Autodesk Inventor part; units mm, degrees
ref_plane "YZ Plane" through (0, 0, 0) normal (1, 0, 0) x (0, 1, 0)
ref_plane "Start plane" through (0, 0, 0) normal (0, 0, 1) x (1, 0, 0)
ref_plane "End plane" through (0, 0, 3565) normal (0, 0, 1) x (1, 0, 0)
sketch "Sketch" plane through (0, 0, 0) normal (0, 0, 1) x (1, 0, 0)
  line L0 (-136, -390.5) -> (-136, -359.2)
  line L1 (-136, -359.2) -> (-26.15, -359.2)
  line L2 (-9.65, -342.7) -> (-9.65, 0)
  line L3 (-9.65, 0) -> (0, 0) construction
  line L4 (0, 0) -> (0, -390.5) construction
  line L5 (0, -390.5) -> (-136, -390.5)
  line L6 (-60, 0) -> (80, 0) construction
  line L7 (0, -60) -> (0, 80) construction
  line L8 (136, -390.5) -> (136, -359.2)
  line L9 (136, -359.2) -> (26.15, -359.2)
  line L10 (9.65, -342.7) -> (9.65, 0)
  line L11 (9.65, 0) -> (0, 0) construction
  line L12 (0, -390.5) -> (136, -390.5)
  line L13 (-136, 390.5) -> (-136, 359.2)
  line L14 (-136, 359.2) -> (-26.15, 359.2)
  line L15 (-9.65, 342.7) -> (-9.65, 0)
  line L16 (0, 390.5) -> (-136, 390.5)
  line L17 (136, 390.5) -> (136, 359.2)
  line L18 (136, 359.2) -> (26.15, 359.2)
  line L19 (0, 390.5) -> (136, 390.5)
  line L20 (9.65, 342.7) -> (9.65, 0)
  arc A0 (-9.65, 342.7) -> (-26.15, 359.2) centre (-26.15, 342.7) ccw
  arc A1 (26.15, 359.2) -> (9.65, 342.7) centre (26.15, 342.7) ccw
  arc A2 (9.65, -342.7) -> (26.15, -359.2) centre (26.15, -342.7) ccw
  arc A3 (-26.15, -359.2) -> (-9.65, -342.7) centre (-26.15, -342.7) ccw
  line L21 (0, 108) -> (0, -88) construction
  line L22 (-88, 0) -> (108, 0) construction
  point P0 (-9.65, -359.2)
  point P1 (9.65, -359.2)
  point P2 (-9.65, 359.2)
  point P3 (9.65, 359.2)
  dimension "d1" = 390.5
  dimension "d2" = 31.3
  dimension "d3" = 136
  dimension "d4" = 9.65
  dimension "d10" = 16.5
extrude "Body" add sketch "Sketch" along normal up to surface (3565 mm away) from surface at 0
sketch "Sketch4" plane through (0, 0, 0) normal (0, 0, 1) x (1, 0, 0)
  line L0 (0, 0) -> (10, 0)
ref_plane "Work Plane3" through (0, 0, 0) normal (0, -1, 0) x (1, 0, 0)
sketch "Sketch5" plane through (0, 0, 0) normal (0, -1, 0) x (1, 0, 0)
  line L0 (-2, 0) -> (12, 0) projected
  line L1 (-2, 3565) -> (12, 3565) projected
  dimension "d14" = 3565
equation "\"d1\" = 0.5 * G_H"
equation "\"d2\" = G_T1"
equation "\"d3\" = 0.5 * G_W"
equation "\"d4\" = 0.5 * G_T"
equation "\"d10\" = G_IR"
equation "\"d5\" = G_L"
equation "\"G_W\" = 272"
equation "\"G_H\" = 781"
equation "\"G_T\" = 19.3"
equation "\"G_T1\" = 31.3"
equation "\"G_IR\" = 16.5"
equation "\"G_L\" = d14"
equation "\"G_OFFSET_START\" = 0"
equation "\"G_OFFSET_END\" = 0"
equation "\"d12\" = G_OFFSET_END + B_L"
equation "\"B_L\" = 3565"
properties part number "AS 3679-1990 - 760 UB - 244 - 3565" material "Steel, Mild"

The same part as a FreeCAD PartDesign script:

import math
import FreeCAD as App
import Part
import Sketcher
Q = App.Units.Quantity

doc = App.newDocument("Part")
params = doc.addObject("Spreadsheet::Sheet", "Params")
for row, (alias, value) in enumerate([
    ("sketch1_radius", "16.5 mm"),
    ("sketch1_height", "31.3 mm"),
    ("pad1_length", "3565 mm"),
], start=1):
    params.set(f"A{row}", alias)
    params.set(f"B{row}", "=" + value)
    params.setAlias(f"B{row}", alias)

body = doc.addObject("PartDesign::Body", "Body")

# Sketch on XY plane
sketch1 = doc.addObject("Sketcher::SketchObject", "Sketch")
body.addObject(sketch1)
sketch1.AttachmentSupport = (doc.XY_Plane, [""])
sketch1.MapMode = "FlatFace"
sketch1.addGeometry(Part.LineSegment(App.Vector(-136, -359, 0), App.Vector(-136, -390, 0)), False)
sketch1.addGeometry(Part.LineSegment(App.Vector(-136, -390, 0), App.Vector(136, -390, 0)), False)
sketch1.addGeometry(Part.LineSegment(App.Vector(136, -390, 0), App.Vector(136, -359, 0)), False)
sketch1.addGeometry(Part.LineSegment(App.Vector(136, -359, 0), App.Vector(26, -359, 0)), False)
sketch1.addGeometry(Part.ArcOfCircle(Part.Circle(App.Vector(26, -343, 0), App.Vector(0, 0, 1), 16), math.radians(180), math.radians(270)), False)
sketch1.addGeometry(Part.LineSegment(App.Vector(10, -343, 0), App.Vector(10, 343, 0)), False)
sketch1.addGeometry(Part.ArcOfCircle(Part.Circle(App.Vector(26, 343, 0), App.Vector(0, 0, 1), 16), math.radians(90), math.radians(180)), False)
sketch1.addGeometry(Part.LineSegment(App.Vector(26, 359, 0), App.Vector(136, 359, 0)), False)
sketch1.addGeometry(Part.LineSegment(App.Vector(136, 359, 0), App.Vector(136, 390, 0)), False)
sketch1.addGeometry(Part.LineSegment(App.Vector(136, 390, 0), App.Vector(-136, 390, 0)), False)
sketch1.addGeometry(Part.LineSegment(App.Vector(-136, 390, 0), App.Vector(-136, 359, 0)), False)
sketch1.addGeometry(Part.LineSegment(App.Vector(-136, 359, 0), App.Vector(-26, 359, 0)), False)
sketch1.addGeometry(Part.ArcOfCircle(Part.Circle(App.Vector(-26, 343, 0), App.Vector(0, 0, 1), 16), math.radians(0), math.radians(90)), False)
sketch1.addGeometry(Part.LineSegment(App.Vector(-10, 343, 0), App.Vector(-10, -343, 0)), False)
sketch1.addGeometry(Part.ArcOfCircle(Part.Circle(App.Vector(-26, -343, 0), App.Vector(0, 0, 1), 16), math.radians(-90), math.radians(0)), False)
sketch1.addGeometry(Part.LineSegment(App.Vector(-26, -359, 0), App.Vector(-136, -359, 0)), False)
sketch1.addConstraint(Sketcher.Constraint("Coincident", 0, 2, 1, 1))
sketch1.addConstraint(Sketcher.Constraint("Coincident", 1, 2, 2, 1))
sketch1.addConstraint(Sketcher.Constraint("Coincident", 2, 2, 3, 1))
sketch1.addConstraint(Sketcher.Constraint("Tangent", 3, 2, 4, 2))
sketch1.addConstraint(Sketcher.Constraint("Tangent", 4, 1, 5, 1))
sketch1.addConstraint(Sketcher.Constraint("Tangent", 5, 2, 6, 2))
sketch1.addConstraint(Sketcher.Constraint("Tangent", 6, 1, 7, 1))
sketch1.addConstraint(Sketcher.Constraint("Coincident", 7, 2, 8, 1))
sketch1.addConstraint(Sketcher.Constraint("Coincident", 8, 2, 9, 1))
sketch1.addConstraint(Sketcher.Constraint("Coincident", 9, 2, 10, 1))
sketch1.addConstraint(Sketcher.Constraint("Coincident", 10, 2, 11, 1))
sketch1.addConstraint(Sketcher.Constraint("Tangent", 11, 2, 12, 2))
sketch1.addConstraint(Sketcher.Constraint("Tangent", 12, 1, 13, 1))
sketch1.addConstraint(Sketcher.Constraint("Tangent", 13, 2, 14, 2))
sketch1.addConstraint(Sketcher.Constraint("Tangent", 14, 1, 15, 1))
sketch1.addConstraint(Sketcher.Constraint("Coincident", 15, 2, 0, 1))
sketch1.addConstraint(Sketcher.Constraint("Vertical", 0))
sketch1.addConstraint(Sketcher.Constraint("Horizontal", 1))
sketch1.addConstraint(Sketcher.Constraint("Vertical", 2))
sketch1.addConstraint(Sketcher.Constraint("Horizontal", 3))
sketch1.addConstraint(Sketcher.Constraint("Vertical", 5))
sketch1.addConstraint(Sketcher.Constraint("Horizontal", 7))
sketch1.addConstraint(Sketcher.Constraint("Vertical", 8))
sketch1.addConstraint(Sketcher.Constraint("Horizontal", 9))
sketch1.addConstraint(Sketcher.Constraint("Vertical", 10))
sketch1.addConstraint(Sketcher.Constraint("Horizontal", 11))
sketch1.addConstraint(Sketcher.Constraint("Vertical", 13))
sketch1.addConstraint(Sketcher.Constraint("Horizontal", 15))
sketch1.addConstraint(Sketcher.Constraint("Equal", 4, 6))
sketch1.addConstraint(Sketcher.Constraint("Equal", 6, 12))
sketch1.addConstraint(Sketcher.Constraint("Equal", 12, 14))
sketch1.addConstraint(Sketcher.Constraint("Symmetric", 4, 3, 12, 3, -1, 1))
sketch1.addConstraint(Sketcher.Constraint("Symmetric", 0, 2, 8, 2, -1, 1))
sketch1.addConstraint(Sketcher.Constraint("Symmetric", 7, 2, 10, 2, -2))
sketch1.addConstraint(Sketcher.Constraint("Symmetric", 2, 2, 15, 2, -2))
sketch1.addConstraint(Sketcher.Constraint("Radius", 4, Q("16.5 mm")))
sketch1.addConstraint(Sketcher.Constraint("DistanceY", 0, 2, 0, 1, Q("31.3 mm")))
sketch1.addConstraint(Sketcher.Constraint("DistanceX", 0, 2, -1, 1, Q("136 mm")))
sketch1.addConstraint(Sketcher.Constraint("DistanceY", 0, 2, -1, 1, Q("390.5 mm")))
sketch1.addConstraint(Sketcher.Constraint("DistanceX", -1, 1, 4, 1, Q("9.65 mm")))
sketch1.setExpression("Constraints[35]", "Params.sketch1_radius")
sketch1.setExpression("Constraints[36]", "Params.sketch1_height")
pad1 = doc.addObject("PartDesign::Pad", "Pad")
body.addObject(pad1)
pad1.Profile = sketch1
pad1.setExpression("Length", "Params.pad1_length")

doc.recompute()
